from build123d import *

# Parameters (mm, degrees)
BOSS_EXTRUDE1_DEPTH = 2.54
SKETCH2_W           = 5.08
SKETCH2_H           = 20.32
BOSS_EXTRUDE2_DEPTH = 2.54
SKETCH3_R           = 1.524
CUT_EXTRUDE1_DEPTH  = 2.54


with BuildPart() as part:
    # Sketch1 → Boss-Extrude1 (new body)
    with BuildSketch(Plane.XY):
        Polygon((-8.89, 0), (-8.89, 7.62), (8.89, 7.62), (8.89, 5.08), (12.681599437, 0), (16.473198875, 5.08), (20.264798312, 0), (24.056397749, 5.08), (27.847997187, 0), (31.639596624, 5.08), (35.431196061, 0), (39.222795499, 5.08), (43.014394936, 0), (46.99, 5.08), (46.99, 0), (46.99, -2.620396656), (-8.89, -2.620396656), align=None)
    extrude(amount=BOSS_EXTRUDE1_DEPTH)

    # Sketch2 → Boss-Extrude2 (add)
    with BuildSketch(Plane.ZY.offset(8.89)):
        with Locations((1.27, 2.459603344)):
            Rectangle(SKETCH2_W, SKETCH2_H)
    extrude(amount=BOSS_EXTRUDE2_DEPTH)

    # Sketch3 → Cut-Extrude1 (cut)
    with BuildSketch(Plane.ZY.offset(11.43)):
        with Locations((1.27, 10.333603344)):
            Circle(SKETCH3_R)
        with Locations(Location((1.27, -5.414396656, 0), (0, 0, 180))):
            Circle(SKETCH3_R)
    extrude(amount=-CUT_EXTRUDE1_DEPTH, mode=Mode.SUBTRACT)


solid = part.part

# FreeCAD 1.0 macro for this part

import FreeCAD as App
import Part
import Sketcher
Q = App.Units.Quantity

doc = App.newDocument("Part")
body = doc.addObject("PartDesign::Body", "Body")

# Sketch on XY plane
sketch1 = body.newObject("Sketcher::SketchObject", "Sketch")
sketch1.AttachmentSupport = (doc.getObject("XY_Plane"), [""])
sketch1.MapMode = "FlatFace"
sketch1.addGeometry(Part.LineSegment(App.Vector(-8.9, 7.6, 0), App.Vector(-8.9, -2.6, 0)), False)
sketch1.addGeometry(Part.LineSegment(App.Vector(-8.9, -2.6, 0), App.Vector(47, -2.6, 0)), False)
sketch1.addGeometry(Part.LineSegment(App.Vector(47, -2.6, 0), App.Vector(47, 5.1, 0)), False)
sketch1.addGeometry(Part.LineSegment(App.Vector(47, 5.1, 0), App.Vector(43, 0, 0)), False)
sketch1.addGeometry(Part.LineSegment(App.Vector(43, 0, 0), App.Vector(39.2, 5.1, 0)), False)
sketch1.addGeometry(Part.LineSegment(App.Vector(39.2, 5.1, 0), App.Vector(35.4, 0, 0)), False)
sketch1.addGeometry(Part.LineSegment(App.Vector(35.4, 0, 0), App.Vector(31.6, 5.1, 0)), False)
sketch1.addGeometry(Part.LineSegment(App.Vector(31.6, 5.1, 0), App.Vector(27.8, 0, 0)), False)
sketch1.addGeometry(Part.LineSegment(App.Vector(27.8, 0, 0), App.Vector(24.1, 5.1, 0)), False)
sketch1.addGeometry(Part.LineSegment(App.Vector(24.1, 5.1, 0), App.Vector(20.3, 0, 0)), False)
sketch1.addGeometry(Part.LineSegment(App.Vector(20.3, 0, 0), App.Vector(16.5, 5.1, 0)), False)
sketch1.addGeometry(Part.LineSegment(App.Vector(16.5, 5.1, 0), App.Vector(12.7, 0, 0)), False)
sketch1.addGeometry(Part.LineSegment(App.Vector(12.7, 0, 0), App.Vector(8.9, 5.1, 0)), False)
sketch1.addGeometry(Part.LineSegment(App.Vector(8.9, 5.1, 0), App.Vector(8.9, 7.6, 0)), False)
sketch1.addGeometry(Part.LineSegment(App.Vector(8.9, 7.6, 0), App.Vector(-8.9, 7.6, 0)), False)
sketch1.addConstraint(Sketcher.Constraint("Coincident", 0, 2, 1, 1))
sketch1.addConstraint(Sketcher.Constraint("Coincident", 1, 2, 2, 1))
sketch1.addConstraint(Sketcher.Constraint("Coincident", 2, 2, 3, 1))
sketch1.addConstraint(Sketcher.Constraint("Coincident", 3, 2, 4, 1))
sketch1.addConstraint(Sketcher.Constraint("Coincident", 4, 2, 5, 1))
sketch1.addConstraint(Sketcher.Constraint("Coincident", 5, 2, 6, 1))
sketch1.addConstraint(Sketcher.Constraint("Coincident", 6, 2, 7, 1))
sketch1.addConstraint(Sketcher.Constraint("Coincident", 7, 2, 8, 1))
sketch1.addConstraint(Sketcher.Constraint("Coincident", 8, 2, 9, 1))
sketch1.addConstraint(Sketcher.Constraint("Coincident", 9, 2, 10, 1))
sketch1.addConstraint(Sketcher.Constraint("Coincident", 10, 2, 11, 1))
sketch1.addConstraint(Sketcher.Constraint("Coincident", 11, 2, 12, 1))
sketch1.addConstraint(Sketcher.Constraint("Coincident", 12, 2, 13, 1))
sketch1.addConstraint(Sketcher.Constraint("Coincident", 13, 2, 14, 1))
sketch1.addConstraint(Sketcher.Constraint("Coincident", 14, 2, 0, 1))
sketch1.addConstraint(Sketcher.Constraint("Vertical", 0))
sketch1.addConstraint(Sketcher.Constraint("Horizontal", 1))
sketch1.addConstraint(Sketcher.Constraint("Vertical", 2))
sketch1.addConstraint(Sketcher.Constraint("Vertical", 13))
sketch1.addConstraint(Sketcher.Constraint("Horizontal", 14))
sketch1.addConstraint(Sketcher.Constraint("PointOnObject", 3, 2, -1))
sketch1.addConstraint(Sketcher.Constraint("PointOnObject", 5, 2, -1))
sketch1.addConstraint(Sketcher.Constraint("PointOnObject", 7, 2, -1))
sketch1.addConstraint(Sketcher.Constraint("PointOnObject", 9, 2, -1))
sketch1.addConstraint(Sketcher.Constraint("PointOnObject", 11, 2, -1))
sketch1.addConstraint(Sketcher.Constraint("Parallel", 4, 6))
sketch1.addConstraint(Sketcher.Constraint("Parallel", 5, 7))
sketch1.addConstraint(Sketcher.Constraint("Parallel", 6, 8))
sketch1.addConstraint(Sketcher.Constraint("Parallel", 7, 9))
sketch1.addConstraint(Sketcher.Constraint("Parallel", 8, 10))
sketch1.addConstraint(Sketcher.Constraint("Parallel", 9, 11))
sketch1.addConstraint(Sketcher.Constraint("Parallel", 10, 12))
sketch1.addConstraint(Sketcher.Constraint("Horizontal", 2, 2, 4, 2))
sketch1.addConstraint(Sketcher.Constraint("Horizontal", 4, 2, 6, 2))
sketch1.addConstraint(Sketcher.Constraint("Horizontal", 6, 2, 8, 2))
sketch1.addConstraint(Sketcher.Constraint("Horizontal", 8, 2, 10, 2))
sketch1.addConstraint(Sketcher.Constraint("Horizontal", 10, 2, 12, 2))
sketch1.addConstraint(Sketcher.Constraint("Equal", 4, 5))
sketch1.addConstraint(Sketcher.Constraint("DistanceX", 1, 1, 1, 2, Q("2.2 in")))
sketch1.addConstraint(Sketcher.Constraint("DistanceX", 14, 2, 14, 1, Q("0.7 in")))
sketch1.addConstraint(Sketcher.Constraint("DistanceY", 13, 1, 13, 2, Q("0.1 in")))
sketch1.addConstraint(Sketcher.Constraint("DistanceY", -1, 1, 2, 2, Q("0.2 in")))
sketch1.addConstraint(Sketcher.Constraint("DistanceX", 0, 2, -1, 1, Q("0.35 in")))
sketch1.addConstraint(Sketcher.Constraint("DistanceX", -1, 1, 9, 2, Q("20.264798 mm")))
sketch1.addConstraint(Sketcher.Constraint("DistanceY", 0, 2, 0, 1, Q("10.240397 mm")))
pad1 = body.newObject("PartDesign::Pad", "Pad")
pad1.Profile = sketch1
pad1.Length = Q("0.1 in")

# Sketch on YZ plane
sketch2 = body.newObject("Sketcher::SketchObject", "Sketch001")
sketch2.AttachmentSupport = (doc.getObject("YZ_Plane"), [""])
sketch2.MapMode = "FlatFace"
sketch2.AttachmentOffset = App.Placement(App.Vector(0, 0, -0.35 * 25.4), App.Rotation())
sketch2.addGeometry(Part.LineSegment(App.Vector(13, -1, 0), App.Vector(-8, -1, 0)), False)
sketch2.addGeometry(Part.LineSegment(App.Vector(-8, -1, 0), App.Vector(-8, 4, 0)), False)
sketch2.addGeometry(Part.LineSegment(App.Vector(-8, 4, 0), App.Vector(13, 4, 0)), False)
sketch2.addGeometry(Part.LineSegment(App.Vector(13, 4, 0), App.Vector(13, -1, 0)), False)
sketch2.addConstraint(Sketcher.Constraint("Coincident", 0, 2, 1, 1))
sketch2.addConstraint(Sketcher.Constraint("Coincident", 1, 2, 2, 1))
sketch2.addConstraint(Sketcher.Constraint("Coincident", 2, 2, 3, 1))
sketch2.addConstraint(Sketcher.Constraint("Coincident", 3, 2, 0, 1))
sketch2.addConstraint(Sketcher.Constraint("Horizontal", 0))
sketch2.addConstraint(Sketcher.Constraint("Vertical", 1))
sketch2.addConstraint(Sketcher.Constraint("Horizontal", 2))
sketch2.addConstraint(Sketcher.Constraint("Vertical", 3))
sketch2.addConstraint(Sketcher.Constraint("DistanceX", 0, 2, 0, 1, Q("0.8 in")))
sketch2.addConstraint(Sketcher.Constraint("DistanceY", 1, 1, 1, 2, Q("0.2 in")))
sketch2.addConstraint(Sketcher.Constraint("DistanceY", 0, 2, -1, 1, Q("0.05 in")))
sketch2.addConstraint(Sketcher.Constraint("DistanceX", 0, 2, -1, 1, Q("7.700397 mm")))
pad2 = body.newObject("PartDesign::Pad", "Pad001")
pad2.Profile = sketch2
pad2.Length = Q("0.1 in")
pad2.Reversed = True

# Sketch on YZ plane
sketch3 = body.newObject("Sketcher::SketchObject", "Sketch002")
sketch3.AttachmentSupport = (doc.getObject("YZ_Plane"), [""])
sketch3.MapMode = "FlatFace"
sketch3.AttachmentOffset = App.Placement(App.Vector(0, 0, -0.45 * 25.4), App.Rotation())
sketch3.addGeometry(Part.Circle(App.Vector(10.3, 1.3, 0), App.Vector(0, 0, 1), 1.5), False)
sketch3.addGeometry(Part.Circle(App.Vector(-5.4, 1.3, 0), App.Vector(0, 0, 1), 1.5), False)
sketch3.addConstraint(Sketcher.Constraint("Equal", 0, 1))
sketch3.addConstraint(Sketcher.Constraint("Horizontal", 0, 3, 1, 3))
sketch3.addConstraint(Sketcher.Constraint("Diameter", 0, Q("0.12 in")))
sketch3.addConstraint(Sketcher.Constraint("DistanceY", -1, 1, 0, 3, Q("0.05 in")))
sketch3.addConstraint(Sketcher.Constraint("DistanceX", 1, 3, 0, 3, Q("0.62 in")))
sketch3.addConstraint(Sketcher.Constraint("DistanceX", -1, 1, 0, 3, Q("10.333603 mm")))
pocket1 = body.newObject("PartDesign::Pocket", "Pocket")
pocket1.Profile = sketch3
pocket1.Length = Q("0.1 in")
pocket1.Reversed = True

doc.recompute()
